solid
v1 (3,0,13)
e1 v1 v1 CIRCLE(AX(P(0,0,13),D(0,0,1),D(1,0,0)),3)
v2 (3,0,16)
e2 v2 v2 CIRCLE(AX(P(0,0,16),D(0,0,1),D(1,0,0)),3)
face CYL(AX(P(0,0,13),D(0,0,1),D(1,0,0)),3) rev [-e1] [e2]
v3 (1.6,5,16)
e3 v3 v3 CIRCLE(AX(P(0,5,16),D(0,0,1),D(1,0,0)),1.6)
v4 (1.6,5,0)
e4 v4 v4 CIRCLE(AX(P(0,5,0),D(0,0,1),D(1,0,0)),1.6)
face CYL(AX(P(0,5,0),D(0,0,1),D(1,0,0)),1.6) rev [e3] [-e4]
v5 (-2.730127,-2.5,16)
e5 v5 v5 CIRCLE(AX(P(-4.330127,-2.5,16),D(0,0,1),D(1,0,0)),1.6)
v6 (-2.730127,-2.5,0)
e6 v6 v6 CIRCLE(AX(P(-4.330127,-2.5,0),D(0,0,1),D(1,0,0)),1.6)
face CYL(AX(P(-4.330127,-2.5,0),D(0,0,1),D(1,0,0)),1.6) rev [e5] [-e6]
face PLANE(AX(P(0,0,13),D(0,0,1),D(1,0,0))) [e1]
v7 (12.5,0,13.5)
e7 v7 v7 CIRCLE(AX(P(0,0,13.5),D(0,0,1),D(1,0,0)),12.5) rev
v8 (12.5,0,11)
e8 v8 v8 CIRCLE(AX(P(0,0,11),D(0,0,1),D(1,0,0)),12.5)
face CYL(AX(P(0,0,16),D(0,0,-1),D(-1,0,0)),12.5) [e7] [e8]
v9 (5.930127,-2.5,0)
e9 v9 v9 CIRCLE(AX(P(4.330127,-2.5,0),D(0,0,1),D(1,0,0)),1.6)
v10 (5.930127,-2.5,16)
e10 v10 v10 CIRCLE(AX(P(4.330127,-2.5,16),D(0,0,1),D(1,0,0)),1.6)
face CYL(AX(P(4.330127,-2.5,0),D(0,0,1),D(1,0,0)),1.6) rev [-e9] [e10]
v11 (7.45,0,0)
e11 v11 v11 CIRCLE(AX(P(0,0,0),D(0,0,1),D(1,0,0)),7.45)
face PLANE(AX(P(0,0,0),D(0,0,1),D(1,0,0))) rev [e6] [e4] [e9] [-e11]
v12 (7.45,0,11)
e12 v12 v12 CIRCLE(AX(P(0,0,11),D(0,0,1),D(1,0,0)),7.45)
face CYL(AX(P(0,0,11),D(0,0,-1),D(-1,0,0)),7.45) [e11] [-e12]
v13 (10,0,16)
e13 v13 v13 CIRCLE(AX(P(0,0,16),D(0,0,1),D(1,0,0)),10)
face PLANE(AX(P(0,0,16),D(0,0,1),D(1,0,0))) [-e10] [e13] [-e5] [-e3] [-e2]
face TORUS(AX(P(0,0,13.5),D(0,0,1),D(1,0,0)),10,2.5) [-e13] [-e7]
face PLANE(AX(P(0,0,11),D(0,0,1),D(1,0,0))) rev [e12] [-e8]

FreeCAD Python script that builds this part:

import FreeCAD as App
import Part
import Sketcher

V = App.Vector
Q = App.Units.Quantity


def edges_at(feature, points):
    """Names of the edges that pass closest to the given points."""
    edges = feature.Shape.Edges
    near = lambda p: min(range(len(edges)), key=lambda i: edges[i].distToShape(Part.Vertex(*p))[0])
    return sorted({f"Edge{near(p) + 1}" for p in points})

doc = App.newDocument("Part")
body = doc.addObject("PartDesign::Body", "Body")

sketch1 = body.newObject("Sketcher::SketchObject", "Sketch")
sketch1.AttachmentSupport = (doc.getObject("XY_Plane"), [""])
sketch1.MapMode = "FlatFace"
sketch1.addGeometry(Part.Circle(V(0, 0, 0), V(0, 0, 1), 7), False)
sketch1.addConstraint([
    Sketcher.Constraint("Coincident", 0, 3, -1, 1),
    Sketcher.Constraint("Diameter", 0, Q("14.9 mm")),
])
pad1 = body.newObject("PartDesign::Pad", "Pad")
pad1.Profile = sketch1
pad1.Length = 11

sketch2 = body.newObject("Sketcher::SketchObject", "Sketch001")
sketch2.AttachmentSupport = (doc.getObject("XY_Plane"), [""])
sketch2.MapMode = "FlatFace"
sketch2.AttachmentOffset = App.Placement(V(0, 0, 11), App.Rotation())
sketch2.addGeometry(Part.Circle(V(0, 0, 0), V(0, 0, 1), 12), False)
sketch2.addConstraint([
    Sketcher.Constraint("Coincident", 0, 3, -1, 1),
    Sketcher.Constraint("Diameter", 0, Q("25 mm")),
])
pad2 = body.newObject("PartDesign::Pad", "Pad001")
pad2.Profile = sketch2
pad2.Length = 5

sketch3 = body.newObject("Sketcher::SketchObject", "Sketch002")
sketch3.AttachmentSupport = (doc.getObject("XY_Plane"), [""])
sketch3.MapMode = "FlatFace"
sketch3.AttachmentOffset = App.Placement(V(0, 0, 16), App.Rotation())
sketch3.addGeometry([
    Part.Circle(V(0, 5, 0), V(0, 0, 1), 1.6),
    Part.Circle(V(4.3, -2.5, 0), V(0, 0, 1), 1.6),
    Part.Circle(V(-4.3, -2.5, 0), V(0, 0, 1), 1.6),
], False)
sketch3.addConstraint([
    Sketcher.Constraint("Equal", 0, 1),
    Sketcher.Constraint("Equal", 1, 2),
    Sketcher.Constraint("Symmetric", 1, 3, 2, 3, -2),
    Sketcher.Constraint("PointOnObject", 0, 3, -2),
    Sketcher.Constraint("Diameter", 0, Q("3.2 mm")),
    Sketcher.Constraint("DistanceY", -1, 1, 0, 3, Q("5 mm")),
    Sketcher.Constraint("DistanceY", 1, 3, -1, 1, Q("2.5 mm")),
    Sketcher.Constraint("DistanceX", -1, 1, 1, 3, Q("4.330127 mm")),
])
pocket1 = body.newObject("PartDesign::Pocket", "Pocket")
pocket1.Profile = sketch3
pocket1.Type = "ThroughAll"
doc.recompute()

fillet = body.newObject("PartDesign::Fillet", "Fillet")
fillet.Base = (pocket1, edges_at(pocket1, [(-12.5, 0, 16)]))
fillet.Radius = 2.5

sketch4 = body.newObject("Sketcher::SketchObject", "Sketch003")
sketch4.AttachmentSupport = (doc.getObject("XY_Plane"), [""])
sketch4.MapMode = "FlatFace"
sketch4.AttachmentOffset = App.Placement(V(0, 0, 16), App.Rotation())
sketch4.addGeometry(Part.Circle(V(0, 0, 0), V(0, 0, 1), 3), False)
sketch4.addConstraint([
    Sketcher.Constraint("Coincident", 0, 3, -1, 1),
    Sketcher.Constraint("Diameter", 0, Q("6 mm")),
])
pocket2 = body.newObject("PartDesign::Pocket", "Pocket001")
pocket2.Profile = sketch4
pocket2.Length = 3

doc.recompute()
